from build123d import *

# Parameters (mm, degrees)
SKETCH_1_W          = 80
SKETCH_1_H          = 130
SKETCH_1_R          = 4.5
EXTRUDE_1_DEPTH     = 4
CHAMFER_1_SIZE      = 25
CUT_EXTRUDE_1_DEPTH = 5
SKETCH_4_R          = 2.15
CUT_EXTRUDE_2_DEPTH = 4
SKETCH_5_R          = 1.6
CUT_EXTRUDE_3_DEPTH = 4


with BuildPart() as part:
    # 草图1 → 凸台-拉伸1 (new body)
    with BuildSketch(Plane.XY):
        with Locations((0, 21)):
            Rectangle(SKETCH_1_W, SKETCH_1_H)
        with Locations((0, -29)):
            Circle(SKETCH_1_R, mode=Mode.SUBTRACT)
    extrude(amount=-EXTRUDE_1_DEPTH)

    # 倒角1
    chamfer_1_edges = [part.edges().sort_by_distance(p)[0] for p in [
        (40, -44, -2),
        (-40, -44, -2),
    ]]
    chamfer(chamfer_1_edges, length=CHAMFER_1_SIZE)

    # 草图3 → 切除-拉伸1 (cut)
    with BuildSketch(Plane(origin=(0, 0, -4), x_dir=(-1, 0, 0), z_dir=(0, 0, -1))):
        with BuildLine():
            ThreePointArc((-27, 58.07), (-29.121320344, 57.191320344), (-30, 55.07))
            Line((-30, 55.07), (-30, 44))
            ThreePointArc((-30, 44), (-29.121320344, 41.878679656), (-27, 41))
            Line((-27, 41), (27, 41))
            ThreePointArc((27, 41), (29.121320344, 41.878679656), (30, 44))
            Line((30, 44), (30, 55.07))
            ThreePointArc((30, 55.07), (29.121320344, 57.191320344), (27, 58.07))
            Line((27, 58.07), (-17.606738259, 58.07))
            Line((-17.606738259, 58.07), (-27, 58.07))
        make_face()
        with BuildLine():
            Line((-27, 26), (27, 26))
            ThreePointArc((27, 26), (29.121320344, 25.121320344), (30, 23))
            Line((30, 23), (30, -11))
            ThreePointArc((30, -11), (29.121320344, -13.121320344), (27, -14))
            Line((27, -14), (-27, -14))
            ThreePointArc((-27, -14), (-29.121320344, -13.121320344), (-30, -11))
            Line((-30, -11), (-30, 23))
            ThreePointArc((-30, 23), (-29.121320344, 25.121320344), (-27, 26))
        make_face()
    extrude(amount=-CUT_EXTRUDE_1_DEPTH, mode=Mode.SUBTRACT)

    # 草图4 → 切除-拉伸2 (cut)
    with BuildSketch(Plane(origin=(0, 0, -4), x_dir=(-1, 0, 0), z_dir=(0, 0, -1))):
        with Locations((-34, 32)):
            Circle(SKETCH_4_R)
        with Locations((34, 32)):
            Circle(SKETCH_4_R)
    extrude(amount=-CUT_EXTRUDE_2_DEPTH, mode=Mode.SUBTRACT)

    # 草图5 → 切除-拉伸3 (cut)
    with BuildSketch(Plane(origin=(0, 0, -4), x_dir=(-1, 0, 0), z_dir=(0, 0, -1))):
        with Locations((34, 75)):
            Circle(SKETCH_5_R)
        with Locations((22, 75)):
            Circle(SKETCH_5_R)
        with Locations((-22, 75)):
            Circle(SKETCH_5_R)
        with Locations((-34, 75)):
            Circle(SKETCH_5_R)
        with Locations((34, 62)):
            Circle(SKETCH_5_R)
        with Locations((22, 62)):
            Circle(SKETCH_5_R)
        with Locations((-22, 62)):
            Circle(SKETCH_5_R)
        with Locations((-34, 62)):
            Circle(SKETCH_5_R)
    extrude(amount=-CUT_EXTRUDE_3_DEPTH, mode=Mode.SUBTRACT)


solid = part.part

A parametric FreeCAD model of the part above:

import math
import FreeCAD as App
import Part
import Sketcher
from FreeCAD import Vector
Q = App.Units.Quantity


def edges_at(feature, points):
    """Names of the edges that pass closest to the given points."""
    edges = feature.Shape.Edges
    near = lambda p: min(range(len(edges)), key=lambda i: edges[i].distToShape(Part.Vertex(*p))[0])
    return sorted({f"Edge{near(p) + 1}" for p in points})

doc = App.newDocument("Part")
params = doc.addObject("Spreadsheet::Sheet", "Params")
for row, (alias, value) in enumerate([
    ("sketch1_diameter", "9 mm"),
    ("sketch1_width", "80 mm"),
    ("sketch1_height", "130 mm"),
    ("pad1_length", "4 mm"),
    ("chamfer_size", "25 mm"),
    ("sketch2_radius", "3 mm"),
    ("sketch2_width", "54 mm"),
    ("sketch2_height", "34 mm"),
    ("sketch2_height2", "11.07 mm"),
    ("pocket1_length", "5 mm"),
    ("sketch3_diameter", "4.3 mm"),
    ("pocket2_length", "4 mm"),
    ("sketch4_diameter", "3.2 mm"),
    ("pocket3_length", "4 mm"),
], start=1):
    params.set(f"A{row}", alias)
    params.set(f"B{row}", "=" + value)
    params.setAlias(f"B{row}", alias)

body = doc.addObject("PartDesign::Body", "Body")

# Sketch on XY plane
sketch1 = body.newObject("Sketcher::SketchObject", "Sketch")
sketch1.AttachmentSupport = (doc.getObject("XY_Plane"), [""])
sketch1.MapMode = "FlatFace"
sketch1.addGeometry([
    Part.LineSegment(Vector(-40, 86, 0), Vector(-40, -44, 0)),  # 0
    Part.LineSegment(Vector(-40, -44, 0), Vector(40, -44, 0)),  # 1
    Part.LineSegment(Vector(40, -44, 0), Vector(40, 86, 0)),  # 2
    Part.LineSegment(Vector(40, 86, 0), Vector(-40, 86, 0)),  # 3
    Part.Circle(Vector(0, -29, 0), Vector(0, 0, 1), 4.5),  # 4
], False)
sketch1.addConstraint([
    Sketcher.Constraint("Coincident", 0, 2, 1, 1),
    Sketcher.Constraint("Coincident", 1, 2, 2, 1),
    Sketcher.Constraint("Coincident", 2, 2, 3, 1),
    Sketcher.Constraint("Coincident", 3, 2, 0, 1),
    Sketcher.Constraint("Vertical", 0),
    Sketcher.Constraint("Horizontal", 1),
    Sketcher.Constraint("Vertical", 2),
    Sketcher.Constraint("Horizontal", 3),
    Sketcher.Constraint("PointOnObject", 4, 3, -2),
    Sketcher.Constraint("Diameter", 4, Q("9 mm")),
    Sketcher.Constraint("DistanceX", 1, 1, 1, 2, Q("80 mm")),
    Sketcher.Constraint("DistanceY", 0, 2, 0, 1, Q("130 mm")),
    Sketcher.Constraint("DistanceY", 4, 3, -1, 1, Q("29 mm")),
    Sketcher.Constraint("DistanceX", 0, 2, -1, 1, Q("40 mm")),
    Sketcher.Constraint("DistanceY", 0, 2, -1, 1, Q("44 mm")),
])
sketch1.setExpression("Constraints[9]", "Params.sketch1_diameter")
sketch1.setExpression("Constraints[10]", "Params.sketch1_width")
sketch1.setExpression("Constraints[11]", "Params.sketch1_height")
pad1 = body.newObject("PartDesign::Pad", "Pad")
pad1.Profile = sketch1
pad1.setExpression("Length", "Params.pad1_length")
pad1.Reversed = True
doc.recompute()

chamfer = body.newObject("PartDesign::Chamfer", "Chamfer")
chamfer.Base = (pad1, edges_at(pad1, [(40, -44, -2), (-40, -44, -2)]))
chamfer.setExpression("Size", "Params.chamfer_size")

# Sketch on XY plane
sketch2 = body.newObject("Sketcher::SketchObject", "Sketch001")
sketch2.AttachmentSupport = (doc.getObject("XY_Plane"), [""])
sketch2.MapMode = "FlatFace"
sketch2.AttachmentOffset = App.Placement(Vector(0, 0, -4), App.Rotation())
sketch2.addGeometry([
    Part.ArcOfCircle(Part.Circle(Vector(27, 55.07, 0), Vector(0, 0, 1), 3), math.radians(0), math.radians(90)),  # 0
    Part.LineSegment(Vector(30, 55.07, 0), Vector(30, 44, 0)),  # 1
    Part.ArcOfCircle(Part.Circle(Vector(27, 44, 0), Vector(0, 0, 1), 3), math.radians(-90), math.radians(0)),  # 2
    Part.LineSegment(Vector(27, 41, 0), Vector(-27, 41, 0)),  # 3
    Part.ArcOfCircle(Part.Circle(Vector(-27, 44, 0), Vector(0, 0, 1), 3), math.radians(180), math.radians(270)),  # 4
    Part.LineSegment(Vector(-30, 44, 0), Vector(-30, 55.07, 0)),  # 5
    Part.ArcOfCircle(Part.Circle(Vector(-27, 55.07, 0), Vector(0, 0, 1), 3), math.radians(90), math.radians(180)),  # 6
    Part.LineSegment(Vector(-27, 58.07, 0), Vector(27, 58.07, 0)),  # 7
    Part.LineSegment(Vector(-27, 26, 0), Vector(27, 26, 0)),  # 8
    Part.ArcOfCircle(Part.Circle(Vector(27, 23, 0), Vector(0, 0, 1), 3), math.radians(0), math.radians(90)),  # 9
    Part.LineSegment(Vector(30, 23, 0), Vector(30, -11, 0)),  # 10
    Part.ArcOfCircle(Part.Circle(Vector(27, -11, 0), Vector(0, 0, 1), 3), math.radians(-90), math.radians(0)),  # 11
    Part.LineSegment(Vector(27, -14, 0), Vector(-27, -14, 0)),  # 12
    Part.ArcOfCircle(Part.Circle(Vector(-27, -11, 0), Vector(0, 0, 1), 3), math.radians(180), math.radians(270)),  # 13
    Part.LineSegment(Vector(-30, -11, 0), Vector(-30, 23, 0)),  # 14
    Part.ArcOfCircle(Part.Circle(Vector(-27, 23, 0), Vector(0, 0, 1), 3), math.radians(90), math.radians(180)),  # 15
], False)
sketch2.addConstraint([
    Sketcher.Constraint("Tangent", 0, 1, 1, 1),
    Sketcher.Constraint("Tangent", 1, 2, 2, 2),
    Sketcher.Constraint("Tangent", 2, 1, 3, 1),
    Sketcher.Constraint("Tangent", 3, 2, 4, 2),
    Sketcher.Constraint("Tangent", 4, 1, 5, 1),
    Sketcher.Constraint("Tangent", 5, 2, 6, 2),
    Sketcher.Constraint("Tangent", 6, 1, 7, 1),
    Sketcher.Constraint("Tangent", 7, 2, 0, 2),
    Sketcher.Constraint("Tangent", 8, 2, 9, 2),
    Sketcher.Constraint("Tangent", 9, 1, 10, 1),
    Sketcher.Constraint("Tangent", 10, 2, 11, 2),
    Sketcher.Constraint("Tangent", 11, 1, 12, 1),
    Sketcher.Constraint("Tangent", 12, 2, 13, 2),
    Sketcher.Constraint("Tangent", 13, 1, 14, 1),
    Sketcher.Constraint("Tangent", 14, 2, 15, 2),
    Sketcher.Constraint("Tangent", 15, 1, 8, 1),
    Sketcher.Constraint("Vertical", 1),
    Sketcher.Constraint("Horizontal", 3),
    Sketcher.Constraint("Vertical", 5),
    Sketcher.Constraint("Horizontal", 7),
    Sketcher.Constraint("Horizontal", 8),
    Sketcher.Constraint("Vertical", 10),
    Sketcher.Constraint("Horizontal", 12),
    Sketcher.Constraint("Vertical", 14),
    Sketcher.Constraint("Equal", 0, 2),
    Sketcher.Constraint("Equal", 2, 4),
    Sketcher.Constraint("Equal", 4, 6),
    Sketcher.Constraint("Equal", 6, 9),
    Sketcher.Constraint("Equal", 9, 11),
    Sketcher.Constraint("Equal", 11, 13),
    Sketcher.Constraint("Equal", 13, 15),
    Sketcher.Constraint("Vertical", 2, 3, 9, 3),
    Sketcher.Constraint("Vertical", 6, 3, 13, 3),
    Sketcher.Constraint("Radius", 0, Q("3 mm")),
    Sketcher.Constraint("DistanceX", 3, 2, 3, 1, Q("54 mm")),
    Sketcher.Constraint("DistanceY", 10, 2, 10, 1, Q("34 mm")),
    Sketcher.Constraint("DistanceX", -1, 1, 0, 3, Q("27 mm")),
    Sketcher.Constraint("DistanceY", -1, 1, 2, 3, Q("44 mm")),
    Sketcher.Constraint("DistanceY", -1, 1, 9, 3, Q("23 mm")),
    Sketcher.Constraint("DistanceY", 1, 2, 1, 1, Q("11.07 mm")),
])
sketch2.setExpression("Constraints[33]", "Params.sketch2_radius")
sketch2.setExpression("Constraints[34]", "Params.sketch2_width")
sketch2.setExpression("Constraints[35]", "Params.sketch2_height")
sketch2.setExpression("Constraints[39]", "Params.sketch2_height2")
pocket1 = body.newObject("PartDesign::Pocket", "Pocket")
pocket1.Profile = sketch2
pocket1.setExpression("Length", "Params.pocket1_length")
pocket1.Reversed = True

# Sketch on XY plane
sketch3 = body.newObject("Sketcher::SketchObject", "Sketch002")
sketch3.AttachmentSupport = (doc.getObject("XY_Plane"), [""])
sketch3.MapMode = "FlatFace"
sketch3.AttachmentOffset = App.Placement(Vector(0, 0, -4), App.Rotation())
sketch3.addGeometry([
    Part.Circle(Vector(34, 32, 0), Vector(0, 0, 1), 2.15),
    Part.Circle(Vector(-34, 32, 0), Vector(0, 0, 1), 2.15),
], False)
sketch3.addConstraint([
    Sketcher.Constraint("Equal", 0, 1),
    Sketcher.Constraint("Symmetric", 0, 3, 1, 3, -2),
    Sketcher.Constraint("Diameter", 0, Q("4.3 mm")),
    Sketcher.Constraint("DistanceX", -1, 1, 0, 3, Q("34 mm")),
    Sketcher.Constraint("DistanceY", -1, 1, 0, 3, Q("32 mm")),
])
sketch3.setExpression("Constraints[2]", "Params.sketch3_diameter")
pocket2 = body.newObject("PartDesign::Pocket", "Pocket001")
pocket2.Profile = sketch3
pocket2.setExpression("Length", "Params.pocket2_length")
pocket2.Reversed = True

# Sketch on XY plane
sketch4 = body.newObject("Sketcher::SketchObject", "Sketch003")
sketch4.AttachmentSupport = (doc.getObject("XY_Plane"), [""])
sketch4.MapMode = "FlatFace"
sketch4.AttachmentOffset = App.Placement(Vector(0, 0, -4), App.Rotation())
sketch4.addGeometry([
    Part.Circle(Vector(-34, 75, 0), Vector(0, 0, 1), 1.6),  # 0
    Part.Circle(Vector(-22, 75, 0), Vector(0, 0, 1), 1.6),  # 1
    Part.Circle(Vector(22, 75, 0), Vector(0, 0, 1), 1.6),  # 2
    Part.Circle(Vector(34, 75, 0), Vector(0, 0, 1), 1.6),  # 3
    Part.Circle(Vector(-34, 62, 0), Vector(0, 0, 1), 1.6),  # 4
    Part.Circle(Vector(-22, 62, 0), Vector(0, 0, 1), 1.6),  # 5
    Part.Circle(Vector(22, 62, 0), Vector(0, 0, 1), 1.6),  # 6
    Part.Circle(Vector(34, 62, 0), Vector(0, 0, 1), 1.6),  # 7
], False)
sketch4.addConstraint([
    Sketcher.Constraint("Equal", 0, 1),
    Sketcher.Constraint("Equal", 1, 2),
    Sketcher.Constraint("Equal", 2, 3),
    Sketcher.Constraint("Equal", 3, 4),
    Sketcher.Constraint("Equal", 4, 5),
    Sketcher.Constraint("Equal", 5, 6),
    Sketcher.Constraint("Equal", 6, 7),
    Sketcher.Constraint("Symmetric", 1, 3, 2, 3, -2),
    Sketcher.Constraint("Symmetric", 0, 3, 3, 3, -2),
    Sketcher.Constraint("Symmetric", 5, 3, 6, 3, -2),
    Sketcher.Constraint("Symmetric", 4, 3, 7, 3, -2),
    Sketcher.Constraint("Horizontal", 0, 3, 1, 3),
    Sketcher.Constraint("Horizontal", 4, 3, 5, 3),
    Sketcher.Constraint("Vertical", 0, 3, 4, 3),
    Sketcher.Constraint("Vertical", 1, 3, 5, 3),
    Sketcher.Constraint("Diameter", 0, Q("3.2 mm")),
    Sketcher.Constraint("DistanceX", 0, 3, -1, 1, Q("34 mm")),
    Sketcher.Constraint("DistanceY", -1, 1, 0, 3, Q("75 mm")),
    Sketcher.Constraint("DistanceX", 1, 3, -1, 1, Q("22 mm")),
    Sketcher.Constraint("DistanceY", -1, 1, 4, 3, Q("62 mm")),
])
sketch4.setExpression("Constraints[15]", "Params.sketch4_diameter")
pocket3 = body.newObject("PartDesign::Pocket", "Pocket002")
pocket3.Profile = sketch4
pocket3.setExpression("Length", "Params.pocket3_length")
pocket3.Reversed = True

doc.recompute()
